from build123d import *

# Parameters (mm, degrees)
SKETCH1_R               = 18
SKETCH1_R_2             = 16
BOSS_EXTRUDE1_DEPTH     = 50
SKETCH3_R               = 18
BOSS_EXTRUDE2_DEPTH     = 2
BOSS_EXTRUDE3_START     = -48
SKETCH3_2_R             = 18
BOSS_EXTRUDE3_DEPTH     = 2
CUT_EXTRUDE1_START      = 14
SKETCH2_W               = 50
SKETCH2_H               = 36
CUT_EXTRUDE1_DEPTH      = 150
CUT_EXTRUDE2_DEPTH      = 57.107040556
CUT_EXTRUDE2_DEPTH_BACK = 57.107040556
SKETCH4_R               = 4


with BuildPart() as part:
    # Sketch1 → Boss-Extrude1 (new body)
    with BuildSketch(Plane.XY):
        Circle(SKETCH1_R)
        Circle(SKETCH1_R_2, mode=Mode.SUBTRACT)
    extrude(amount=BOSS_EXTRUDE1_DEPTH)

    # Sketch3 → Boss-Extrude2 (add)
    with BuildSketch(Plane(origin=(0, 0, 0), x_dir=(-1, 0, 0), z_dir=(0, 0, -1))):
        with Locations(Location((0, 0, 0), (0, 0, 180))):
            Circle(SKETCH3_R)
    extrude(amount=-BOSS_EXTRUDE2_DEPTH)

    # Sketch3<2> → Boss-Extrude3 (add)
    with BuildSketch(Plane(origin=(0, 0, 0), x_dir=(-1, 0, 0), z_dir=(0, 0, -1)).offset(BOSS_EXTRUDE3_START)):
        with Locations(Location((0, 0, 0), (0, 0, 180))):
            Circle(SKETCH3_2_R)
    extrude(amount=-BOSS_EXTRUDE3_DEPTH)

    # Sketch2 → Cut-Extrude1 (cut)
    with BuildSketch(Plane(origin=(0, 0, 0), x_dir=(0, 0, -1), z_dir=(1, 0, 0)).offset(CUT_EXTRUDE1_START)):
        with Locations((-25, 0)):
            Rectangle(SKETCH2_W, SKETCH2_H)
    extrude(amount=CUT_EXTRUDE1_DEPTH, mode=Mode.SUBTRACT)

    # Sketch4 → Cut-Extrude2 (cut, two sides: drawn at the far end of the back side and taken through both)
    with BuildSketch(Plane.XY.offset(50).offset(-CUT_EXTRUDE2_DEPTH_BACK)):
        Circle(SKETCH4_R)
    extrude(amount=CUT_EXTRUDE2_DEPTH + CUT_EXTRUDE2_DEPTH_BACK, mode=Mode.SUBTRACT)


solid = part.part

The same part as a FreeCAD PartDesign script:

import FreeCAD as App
import Part
import Sketcher

V = App.Vector
Q = App.Units.Quantity

doc = App.newDocument("Part")
body = doc.addObject("PartDesign::Body", "Body")

# Sketch on XY plane
sketch1 = doc.addObject("Sketcher::SketchObject", "Sketch")
body.addObject(sketch1)
sketch1.AttachmentSupport = (doc.XY_Plane, [""])
sketch1.MapMode = "FlatFace"
sketch1.addGeometry([
    Part.Circle(V(0, 0, 0), V(0, 0, 1), 18),
    Part.Circle(V(0, 0, 0), V(0, 0, 1), 16),
], False)
sketch1.addConstraint([
    Sketcher.Constraint("Coincident", 0, 3, -1, 1),
    Sketcher.Constraint("Coincident", 1, 3, -1, 1),
    Sketcher.Constraint("Diameter", 0, Q("36 mm")),
    Sketcher.Constraint("Diameter", 1, Q("32 mm")),
])
pad1 = doc.addObject("PartDesign::Pad", "Pad")
body.addObject(pad1)
pad1.Profile = sketch1
pad1.Length = 50

# Sketch on XY plane
sketch2 = doc.addObject("Sketcher::SketchObject", "Sketch001")
body.addObject(sketch2)
sketch2.AttachmentSupport = (doc.XY_Plane, [""])
sketch2.MapMode = "FlatFace"
sketch2.addGeometry(Part.Circle(V(0, 0, 0), V(0, 0, 1), 18), False)
sketch2.addConstraint([
    Sketcher.Constraint("Coincident", 0, 3, -1, 1),
    Sketcher.Constraint("Diameter", 0, Q("36 mm")),
])
pad2 = doc.addObject("PartDesign::Pad", "Pad001")
body.addObject(pad2)
pad2.Profile = sketch2
pad2.Length = 2

# Sketch on XY plane
sketch3 = doc.addObject("Sketcher::SketchObject", "Sketch002")
body.addObject(sketch3)
sketch3.AttachmentSupport = (doc.XY_Plane, [""])
sketch3.MapMode = "FlatFace"
sketch3.AttachmentOffset = App.Placement(V(0, 0, 48), App.Rotation())
sketch3.addGeometry(Part.Circle(V(0, 0, 0), V(0, 0, 1), 18), False)
sketch3.addConstraint([
    Sketcher.Constraint("Coincident", 0, 3, -1, 1),
    Sketcher.Constraint("Diameter", 0, Q("36 mm")),
])
pad3 = doc.addObject("PartDesign::Pad", "Pad002")
body.addObject(pad3)
pad3.Profile = sketch3
pad3.Length = 2

# Sketch on YZ plane
sketch4 = doc.addObject("Sketcher::SketchObject", "Sketch003")
body.addObject(sketch4)
sketch4.AttachmentSupport = (doc.YZ_Plane, [""])
sketch4.MapMode = "FlatFace"
sketch4.AttachmentOffset = App.Placement(V(0, 0, 14), App.Rotation())
sketch4.addGeometry([
    Part.LineSegment(V(18, 50, 0), V(-18, 50, 0)),
    Part.LineSegment(V(-18, 50, 0), V(-18, 0, 0)),
    Part.LineSegment(V(-18, 0, 0), V(18, 0, 0)),
    Part.LineSegment(V(18, 0, 0), V(18, 50, 0)),
], False)
sketch4.addConstraint([
    Sketcher.Constraint("Coincident", 0, 2, 1, 1),
    Sketcher.Constraint("Coincident", 1, 2, 2, 1),
    Sketcher.Constraint("Coincident", 2, 2, 3, 1),
    Sketcher.Constraint("Coincident", 3, 2, 0, 1),
    Sketcher.Constraint("Horizontal", 0),
    Sketcher.Constraint("Vertical", 1),
    Sketcher.Constraint("Horizontal", 2),
    Sketcher.Constraint("Vertical", 3),
    Sketcher.Constraint("Symmetric", 1, 2, 2, 2, -1, 1),
    Sketcher.Constraint("DistanceX", 0, 2, 0, 1, Q("36 mm")),
    Sketcher.Constraint("DistanceY", 1, 2, 1, 1, Q("50 mm")),
])
pocket1 = doc.addObject("PartDesign::Pocket", "Pocket")
body.addObject(pocket1)
pocket1.Profile = sketch4
pocket1.Length = 150
pocket1.Reversed = True

# Sketch on XY plane
sketch5 = doc.addObject("Sketcher::SketchObject", "Sketch004")
body.addObject(sketch5)
sketch5.AttachmentSupport = (doc.XY_Plane, [""])
sketch5.MapMode = "FlatFace"
sketch5.AttachmentOffset = App.Placement(V(0, 0, 50), App.Rotation())
sketch5.addGeometry(Part.Circle(V(0, 0, 0), V(0, 0, 1), 4), False)
sketch5.addConstraint([
    Sketcher.Constraint("Coincident", 0, 3, -1, 1),
    Sketcher.Constraint("Diameter", 0, Q("8 mm")),
])
pocket2 = doc.addObject("PartDesign::Pocket", "Pocket001")
body.addObject(pocket2)
pocket2.Profile = sketch5
pocket2.Type = "ThroughAll"
pocket2.Midplane = True

doc.recompute()
